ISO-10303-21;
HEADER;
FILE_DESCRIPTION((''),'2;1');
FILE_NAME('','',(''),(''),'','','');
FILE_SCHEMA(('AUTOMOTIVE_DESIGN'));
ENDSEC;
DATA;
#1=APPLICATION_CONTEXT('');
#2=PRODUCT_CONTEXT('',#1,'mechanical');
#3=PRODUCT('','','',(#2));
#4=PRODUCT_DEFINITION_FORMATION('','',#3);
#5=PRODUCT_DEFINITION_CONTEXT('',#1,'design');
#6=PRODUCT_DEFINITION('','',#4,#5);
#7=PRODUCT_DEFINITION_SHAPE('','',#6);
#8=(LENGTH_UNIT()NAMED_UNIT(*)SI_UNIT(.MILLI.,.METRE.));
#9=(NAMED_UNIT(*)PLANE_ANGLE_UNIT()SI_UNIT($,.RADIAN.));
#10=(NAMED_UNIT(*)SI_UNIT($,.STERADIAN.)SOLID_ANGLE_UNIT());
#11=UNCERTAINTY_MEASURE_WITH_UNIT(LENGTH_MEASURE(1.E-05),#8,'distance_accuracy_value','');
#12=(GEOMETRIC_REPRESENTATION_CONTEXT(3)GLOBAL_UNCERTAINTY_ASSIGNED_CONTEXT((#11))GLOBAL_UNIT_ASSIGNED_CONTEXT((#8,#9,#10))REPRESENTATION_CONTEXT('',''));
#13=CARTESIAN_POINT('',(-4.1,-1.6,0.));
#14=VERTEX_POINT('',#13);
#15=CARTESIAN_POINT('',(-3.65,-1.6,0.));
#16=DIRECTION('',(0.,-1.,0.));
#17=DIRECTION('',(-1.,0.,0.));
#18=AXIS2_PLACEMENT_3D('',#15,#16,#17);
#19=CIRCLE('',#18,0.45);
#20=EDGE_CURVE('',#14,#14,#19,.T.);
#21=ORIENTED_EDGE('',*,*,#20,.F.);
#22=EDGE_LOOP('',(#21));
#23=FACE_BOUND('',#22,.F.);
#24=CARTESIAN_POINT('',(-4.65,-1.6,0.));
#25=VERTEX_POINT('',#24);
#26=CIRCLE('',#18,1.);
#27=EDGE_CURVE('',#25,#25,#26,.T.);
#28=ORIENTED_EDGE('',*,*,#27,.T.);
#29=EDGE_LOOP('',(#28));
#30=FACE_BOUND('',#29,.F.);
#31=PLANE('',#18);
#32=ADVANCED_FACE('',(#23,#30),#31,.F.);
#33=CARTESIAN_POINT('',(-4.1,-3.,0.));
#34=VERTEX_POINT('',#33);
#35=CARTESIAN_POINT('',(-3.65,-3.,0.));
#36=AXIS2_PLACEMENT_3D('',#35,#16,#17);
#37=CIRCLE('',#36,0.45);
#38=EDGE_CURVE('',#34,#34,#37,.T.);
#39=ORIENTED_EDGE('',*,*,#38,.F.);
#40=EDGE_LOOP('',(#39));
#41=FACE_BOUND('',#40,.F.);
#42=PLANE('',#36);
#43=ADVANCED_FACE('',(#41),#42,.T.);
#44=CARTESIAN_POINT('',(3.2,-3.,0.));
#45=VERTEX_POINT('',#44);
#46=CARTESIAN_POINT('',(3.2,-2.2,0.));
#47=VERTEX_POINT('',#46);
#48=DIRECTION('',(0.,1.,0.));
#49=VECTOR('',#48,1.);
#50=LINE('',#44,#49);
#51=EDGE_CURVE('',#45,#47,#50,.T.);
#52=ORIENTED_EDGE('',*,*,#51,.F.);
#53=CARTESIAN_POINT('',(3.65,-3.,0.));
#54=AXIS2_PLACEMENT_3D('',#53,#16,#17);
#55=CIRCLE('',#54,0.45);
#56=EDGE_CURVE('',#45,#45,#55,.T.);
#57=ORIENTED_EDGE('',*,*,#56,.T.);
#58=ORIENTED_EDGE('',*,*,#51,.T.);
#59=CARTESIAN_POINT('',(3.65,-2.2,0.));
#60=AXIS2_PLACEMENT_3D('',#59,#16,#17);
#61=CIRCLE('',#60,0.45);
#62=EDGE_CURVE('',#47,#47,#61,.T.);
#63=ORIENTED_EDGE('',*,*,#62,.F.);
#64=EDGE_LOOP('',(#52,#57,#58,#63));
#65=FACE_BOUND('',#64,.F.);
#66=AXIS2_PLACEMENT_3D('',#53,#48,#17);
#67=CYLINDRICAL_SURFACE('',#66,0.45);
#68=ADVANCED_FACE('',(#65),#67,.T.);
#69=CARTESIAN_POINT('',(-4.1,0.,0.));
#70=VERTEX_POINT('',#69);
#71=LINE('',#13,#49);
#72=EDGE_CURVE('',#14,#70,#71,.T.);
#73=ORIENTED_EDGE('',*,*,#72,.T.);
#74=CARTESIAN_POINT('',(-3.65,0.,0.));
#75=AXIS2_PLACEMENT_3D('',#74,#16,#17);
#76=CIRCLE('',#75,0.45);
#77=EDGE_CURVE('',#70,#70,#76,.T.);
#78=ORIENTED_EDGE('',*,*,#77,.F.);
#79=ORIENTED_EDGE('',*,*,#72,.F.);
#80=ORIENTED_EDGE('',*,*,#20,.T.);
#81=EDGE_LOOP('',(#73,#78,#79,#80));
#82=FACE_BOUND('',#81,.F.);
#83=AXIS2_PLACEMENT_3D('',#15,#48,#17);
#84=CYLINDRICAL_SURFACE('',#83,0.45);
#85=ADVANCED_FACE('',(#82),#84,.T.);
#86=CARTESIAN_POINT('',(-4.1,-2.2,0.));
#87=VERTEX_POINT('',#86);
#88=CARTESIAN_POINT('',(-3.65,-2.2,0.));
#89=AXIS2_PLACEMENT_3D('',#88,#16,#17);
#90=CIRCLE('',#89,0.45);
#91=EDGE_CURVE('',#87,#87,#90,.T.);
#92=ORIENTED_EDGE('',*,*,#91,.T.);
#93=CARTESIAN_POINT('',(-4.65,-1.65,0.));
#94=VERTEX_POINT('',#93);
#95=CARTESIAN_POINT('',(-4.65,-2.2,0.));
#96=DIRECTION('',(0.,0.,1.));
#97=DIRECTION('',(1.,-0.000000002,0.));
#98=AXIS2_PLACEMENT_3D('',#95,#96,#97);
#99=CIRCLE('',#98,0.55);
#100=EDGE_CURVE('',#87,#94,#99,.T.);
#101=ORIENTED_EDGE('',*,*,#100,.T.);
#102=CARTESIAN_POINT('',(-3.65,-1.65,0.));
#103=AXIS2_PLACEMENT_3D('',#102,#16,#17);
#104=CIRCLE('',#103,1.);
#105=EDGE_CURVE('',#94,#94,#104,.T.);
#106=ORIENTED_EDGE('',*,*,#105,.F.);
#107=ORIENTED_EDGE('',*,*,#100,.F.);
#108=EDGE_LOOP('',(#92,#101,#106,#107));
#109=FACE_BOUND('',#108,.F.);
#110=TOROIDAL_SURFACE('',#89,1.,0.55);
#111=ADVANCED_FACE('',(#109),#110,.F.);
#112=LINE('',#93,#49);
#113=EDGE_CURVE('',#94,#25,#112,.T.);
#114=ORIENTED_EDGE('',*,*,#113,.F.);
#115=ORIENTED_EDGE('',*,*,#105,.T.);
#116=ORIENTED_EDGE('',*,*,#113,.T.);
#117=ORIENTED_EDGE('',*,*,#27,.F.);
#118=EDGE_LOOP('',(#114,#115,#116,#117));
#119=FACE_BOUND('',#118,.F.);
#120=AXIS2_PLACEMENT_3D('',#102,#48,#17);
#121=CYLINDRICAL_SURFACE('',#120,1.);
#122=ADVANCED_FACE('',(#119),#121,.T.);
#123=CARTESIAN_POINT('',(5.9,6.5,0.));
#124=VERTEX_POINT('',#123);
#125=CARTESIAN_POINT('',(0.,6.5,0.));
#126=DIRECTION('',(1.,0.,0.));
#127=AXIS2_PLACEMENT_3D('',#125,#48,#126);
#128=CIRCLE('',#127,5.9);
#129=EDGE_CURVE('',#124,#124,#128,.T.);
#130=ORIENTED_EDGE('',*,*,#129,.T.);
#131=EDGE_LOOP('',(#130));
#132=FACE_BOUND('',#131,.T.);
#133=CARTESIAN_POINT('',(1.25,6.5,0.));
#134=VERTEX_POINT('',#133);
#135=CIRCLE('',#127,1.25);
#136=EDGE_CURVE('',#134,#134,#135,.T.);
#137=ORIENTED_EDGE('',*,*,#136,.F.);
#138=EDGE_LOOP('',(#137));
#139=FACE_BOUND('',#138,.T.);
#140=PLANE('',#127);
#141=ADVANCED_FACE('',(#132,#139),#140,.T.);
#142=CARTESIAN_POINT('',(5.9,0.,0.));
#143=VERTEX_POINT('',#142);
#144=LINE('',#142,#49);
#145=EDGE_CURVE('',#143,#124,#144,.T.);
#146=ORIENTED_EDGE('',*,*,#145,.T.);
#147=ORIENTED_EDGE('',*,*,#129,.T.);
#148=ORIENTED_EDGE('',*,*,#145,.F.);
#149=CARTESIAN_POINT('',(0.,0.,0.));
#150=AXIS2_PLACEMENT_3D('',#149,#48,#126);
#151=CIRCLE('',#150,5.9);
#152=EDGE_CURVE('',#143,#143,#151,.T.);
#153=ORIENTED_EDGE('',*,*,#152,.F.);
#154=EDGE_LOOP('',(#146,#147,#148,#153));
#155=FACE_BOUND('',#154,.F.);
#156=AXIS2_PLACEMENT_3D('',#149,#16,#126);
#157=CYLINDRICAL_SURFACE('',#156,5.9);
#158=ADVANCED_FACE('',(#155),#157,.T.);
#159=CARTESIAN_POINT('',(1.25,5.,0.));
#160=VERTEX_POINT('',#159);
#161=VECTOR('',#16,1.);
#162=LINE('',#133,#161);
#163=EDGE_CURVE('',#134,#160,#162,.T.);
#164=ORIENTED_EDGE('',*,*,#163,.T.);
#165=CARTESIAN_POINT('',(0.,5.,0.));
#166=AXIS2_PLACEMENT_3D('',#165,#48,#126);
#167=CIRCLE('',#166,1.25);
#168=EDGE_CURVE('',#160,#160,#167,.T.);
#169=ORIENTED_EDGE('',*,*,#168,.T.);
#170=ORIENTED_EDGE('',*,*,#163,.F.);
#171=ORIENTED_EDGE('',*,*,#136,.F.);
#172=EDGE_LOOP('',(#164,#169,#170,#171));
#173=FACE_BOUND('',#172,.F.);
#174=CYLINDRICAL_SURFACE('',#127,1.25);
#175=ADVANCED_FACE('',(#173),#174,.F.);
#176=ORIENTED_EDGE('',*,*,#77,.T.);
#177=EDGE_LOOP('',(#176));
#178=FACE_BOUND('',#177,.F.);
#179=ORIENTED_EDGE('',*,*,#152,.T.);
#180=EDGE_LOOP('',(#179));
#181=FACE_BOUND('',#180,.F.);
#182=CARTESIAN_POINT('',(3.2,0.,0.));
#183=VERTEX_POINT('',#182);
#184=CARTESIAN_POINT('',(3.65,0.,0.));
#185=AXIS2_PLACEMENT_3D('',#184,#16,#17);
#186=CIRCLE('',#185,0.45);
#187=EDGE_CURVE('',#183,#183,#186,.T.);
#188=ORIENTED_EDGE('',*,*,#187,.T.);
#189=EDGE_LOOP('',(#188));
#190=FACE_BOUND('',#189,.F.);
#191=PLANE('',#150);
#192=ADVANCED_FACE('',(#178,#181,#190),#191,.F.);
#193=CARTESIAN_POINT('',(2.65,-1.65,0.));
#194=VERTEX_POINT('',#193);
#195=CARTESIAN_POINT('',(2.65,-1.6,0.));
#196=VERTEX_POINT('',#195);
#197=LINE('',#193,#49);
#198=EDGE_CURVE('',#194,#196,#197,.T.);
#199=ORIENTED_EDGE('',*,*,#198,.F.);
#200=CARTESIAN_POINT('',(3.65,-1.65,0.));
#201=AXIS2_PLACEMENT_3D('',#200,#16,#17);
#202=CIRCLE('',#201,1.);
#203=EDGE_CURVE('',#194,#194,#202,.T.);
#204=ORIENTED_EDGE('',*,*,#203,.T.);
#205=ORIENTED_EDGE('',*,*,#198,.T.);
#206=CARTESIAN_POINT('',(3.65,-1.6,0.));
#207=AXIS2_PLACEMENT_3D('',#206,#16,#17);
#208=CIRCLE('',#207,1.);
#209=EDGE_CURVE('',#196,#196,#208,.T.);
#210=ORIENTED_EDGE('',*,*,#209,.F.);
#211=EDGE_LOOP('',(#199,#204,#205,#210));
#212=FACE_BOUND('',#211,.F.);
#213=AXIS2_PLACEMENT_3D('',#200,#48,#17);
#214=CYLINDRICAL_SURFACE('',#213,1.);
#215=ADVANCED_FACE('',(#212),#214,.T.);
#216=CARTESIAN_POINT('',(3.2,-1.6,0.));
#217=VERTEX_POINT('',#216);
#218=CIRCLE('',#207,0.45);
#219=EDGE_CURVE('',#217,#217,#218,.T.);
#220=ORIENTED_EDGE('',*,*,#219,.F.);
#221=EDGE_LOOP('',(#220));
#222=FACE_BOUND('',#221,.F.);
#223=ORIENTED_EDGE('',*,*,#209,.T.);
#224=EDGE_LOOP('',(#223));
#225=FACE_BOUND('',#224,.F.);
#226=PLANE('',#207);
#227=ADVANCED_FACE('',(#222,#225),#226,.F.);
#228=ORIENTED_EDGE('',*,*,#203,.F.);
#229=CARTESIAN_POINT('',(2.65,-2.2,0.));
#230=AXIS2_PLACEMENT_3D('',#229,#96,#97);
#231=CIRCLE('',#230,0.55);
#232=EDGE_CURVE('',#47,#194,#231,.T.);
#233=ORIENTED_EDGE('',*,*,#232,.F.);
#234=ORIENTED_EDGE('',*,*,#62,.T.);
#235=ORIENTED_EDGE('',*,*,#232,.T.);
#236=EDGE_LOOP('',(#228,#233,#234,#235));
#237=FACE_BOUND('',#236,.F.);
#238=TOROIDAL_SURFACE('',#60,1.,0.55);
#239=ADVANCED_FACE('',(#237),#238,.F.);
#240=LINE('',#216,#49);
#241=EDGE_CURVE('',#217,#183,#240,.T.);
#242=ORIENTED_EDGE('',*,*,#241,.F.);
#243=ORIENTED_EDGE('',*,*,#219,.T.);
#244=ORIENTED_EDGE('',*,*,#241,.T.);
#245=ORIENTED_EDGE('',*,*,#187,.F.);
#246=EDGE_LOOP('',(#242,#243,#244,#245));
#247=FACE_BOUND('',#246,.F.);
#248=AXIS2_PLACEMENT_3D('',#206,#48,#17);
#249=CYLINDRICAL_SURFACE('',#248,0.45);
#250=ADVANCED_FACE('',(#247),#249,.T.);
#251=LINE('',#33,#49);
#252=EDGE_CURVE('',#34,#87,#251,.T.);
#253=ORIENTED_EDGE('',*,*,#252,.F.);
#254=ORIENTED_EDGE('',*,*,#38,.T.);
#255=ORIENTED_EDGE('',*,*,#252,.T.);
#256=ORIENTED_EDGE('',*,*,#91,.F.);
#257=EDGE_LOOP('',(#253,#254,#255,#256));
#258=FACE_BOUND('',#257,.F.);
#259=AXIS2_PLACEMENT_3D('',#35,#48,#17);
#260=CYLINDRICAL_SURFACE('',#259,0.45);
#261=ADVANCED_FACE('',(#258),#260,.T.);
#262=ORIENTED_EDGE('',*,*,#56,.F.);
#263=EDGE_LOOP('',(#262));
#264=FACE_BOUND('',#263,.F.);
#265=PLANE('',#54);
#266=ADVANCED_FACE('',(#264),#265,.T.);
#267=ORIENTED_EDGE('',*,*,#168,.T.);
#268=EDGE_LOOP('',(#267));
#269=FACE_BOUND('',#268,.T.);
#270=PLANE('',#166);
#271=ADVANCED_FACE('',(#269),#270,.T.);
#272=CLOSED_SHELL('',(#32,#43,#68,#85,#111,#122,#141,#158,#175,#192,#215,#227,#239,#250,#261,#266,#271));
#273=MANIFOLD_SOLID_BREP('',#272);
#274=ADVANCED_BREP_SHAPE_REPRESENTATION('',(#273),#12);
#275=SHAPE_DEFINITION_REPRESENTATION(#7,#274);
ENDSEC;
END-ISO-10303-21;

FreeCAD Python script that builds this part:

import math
import FreeCAD as App
import Part
import Sketcher

V = App.Vector

doc = App.newDocument("Part")
body = doc.addObject("PartDesign::Body", "Body")

# Sketch on XZ plane
sketch1 = doc.addObject("Sketcher::SketchObject", "Sketch")
body.addObject(sketch1)
sketch1.AttachmentSupport = (doc.XZ_Plane, [""])
sketch1.MapMode = "FlatFace"
sketch1.addGeometry(Part.Circle(V(0, 0, 0), V(0, 0, 1), 6), False)
sketch1.addConstraint(Sketcher.Constraint("Coincident", 0, 3, -1, 1))
sketch1.addConstraint(Sketcher.Constraint("Diameter", 0, 11.8))
pad1 = doc.addObject("PartDesign::Pad", "Pad")
body.addObject(pad1)
pad1.Profile = sketch1
pad1.Length = 6.5
pad1.Reversed = True

# Sketch on XZ plane
sketch2 = doc.addObject("Sketcher::SketchObject", "Sketch001")
body.addObject(sketch2)
sketch2.AttachmentSupport = (doc.XZ_Plane, [""])
sketch2.MapMode = "FlatFace"
sketch2.AttachmentOffset = App.Placement(V(0, 0, -6.5), App.Rotation())
sketch2.addGeometry(Part.Circle(V(0, 0, 0), V(0, 0, 1), 1.2), False)
sketch2.addConstraint(Sketcher.Constraint("Coincident", 0, 3, -1, 1))
sketch2.addConstraint(Sketcher.Constraint("Diameter", 0, 2.5))
pocket1 = doc.addObject("PartDesign::Pocket", "Pocket")
body.addObject(pocket1)
pocket1.Profile = sketch2
pocket1.Length = 1.5
pocket1.Reversed = True

# Sketch on XY plane
sketch3 = doc.addObject("Sketcher::SketchObject", "Sketch002")
body.addObject(sketch3)
sketch3.AttachmentSupport = (doc.XY_Plane, [""])
sketch3.MapMode = "FlatFace"
sketch3.addGeometry(Part.LineSegment(V(-4.1, -3, 0), V(-3.65, -3, 0)), False)
sketch3.addGeometry(Part.LineSegment(V(-3.65, -3, 0), V(-3.65, 0, 0)), False)
sketch3.addGeometry(Part.LineSegment(V(-3.65, 0, 0), V(-4.1, 0, 0)), False)
sketch3.addGeometry(Part.LineSegment(V(-4.1, 0, 0), V(-4.1, -1.6, 0)), False)
sketch3.addGeometry(Part.LineSegment(V(-4.1, -1.6, 0), V(-4.65, -1.6, 0)), False)
sketch3.addGeometry(Part.LineSegment(V(-4.65, -1.6, 0), V(-4.65, -1.65, 0)), False)
sketch3.addGeometry(Part.ArcOfCircle(Part.Circle(V(-4.65, -2.2, 0), V(0, 0, 1), 0.55), math.radians(0), math.radians(90)), False)
sketch3.addGeometry(Part.LineSegment(V(-4.1, -2.2, 0), V(-4.1, -3, 0)), False)
sketch3.addGeometry(Part.LineSegment(V(-3.65, 0, 0), V(-3.65, -3, 0)), True)  # axis
sketch3.addConstraint(Sketcher.Constraint("Coincident", 0, 2, 1, 1))
sketch3.addConstraint(Sketcher.Constraint("Coincident", 1, 2, 2, 1))
sketch3.addConstraint(Sketcher.Constraint("Coincident", 2, 2, 3, 1))
sketch3.addConstraint(Sketcher.Constraint("Coincident", 3, 2, 4, 1))
sketch3.addConstraint(Sketcher.Constraint("Coincident", 4, 2, 5, 1))
sketch3.addConstraint(Sketcher.Constraint("Coincident", 5, 2, 6, 2))
sketch3.addConstraint(Sketcher.Constraint("Tangent", 6, 1, 7, 1))
sketch3.addConstraint(Sketcher.Constraint("Coincident", 7, 2, 0, 1))
sketch3.addConstraint(Sketcher.Constraint("Horizontal", 0))
sketch3.addConstraint(Sketcher.Constraint("Vertical", 1))
sketch3.addConstraint(Sketcher.Constraint("Horizontal", 2))
sketch3.addConstraint(Sketcher.Constraint("Vertical", 3))
sketch3.addConstraint(Sketcher.Constraint("Horizontal", 4))
sketch3.addConstraint(Sketcher.Constraint("Vertical", 5))
sketch3.addConstraint(Sketcher.Constraint("Vertical", 7))
sketch3.addConstraint(Sketcher.Constraint("Vertical", 8))
sketch3.addConstraint(Sketcher.Constraint("Coincident", 8, 1, 1, 2))
sketch3.addConstraint(Sketcher.Constraint("PointOnObject", 1, 2, -1))
sketch3.addConstraint(Sketcher.Constraint("Horizontal", 7, 2, 8, 2))
sketch3.addConstraint(Sketcher.Constraint("Vertical", 6, 3, 4, 2))
sketch3.addConstraint(Sketcher.Constraint("Vertical", 3, 2, 6, 1))
sketch3.addConstraint(Sketcher.Constraint("DistanceY", 1, 1, 1, 2, 3.0))
sketch3.addConstraint(Sketcher.Constraint("Radius", 6, 0.55))
sketch3.addConstraint(Sketcher.Constraint("DistanceY", 3, 2, 3, 1, 1.6))
sketch3.addConstraint(Sketcher.Constraint("DistanceY", 7, 2, 7, 1, 0.8))
sketch3.addConstraint(Sketcher.Constraint("DistanceX", 6, 3, 0, 2, 1.0))
sketch3.addConstraint(Sketcher.Constraint("DistanceX", 2, 2, -1, 1, 4.1))
revolution = doc.addObject("PartDesign::Revolution", "Revolution")
body.addObject(revolution)
revolution.Profile = sketch3
revolution.ReferenceAxis = (sketch3, ["Axis0"])
revolution.Angle = 360
doc.recompute()

linearpattern = doc.addObject("PartDesign::LinearPattern", "LinearPattern")
body.addObject(linearpattern)
linearpattern.Originals = [revolution]
linearpattern.Direction = (doc.X_Axis, [""])
linearpattern.Mode = "offset"
linearpattern.Offset = 7.3
linearpattern.Occurrences = 2
body.Tip = linearpattern

doc.recompute()
